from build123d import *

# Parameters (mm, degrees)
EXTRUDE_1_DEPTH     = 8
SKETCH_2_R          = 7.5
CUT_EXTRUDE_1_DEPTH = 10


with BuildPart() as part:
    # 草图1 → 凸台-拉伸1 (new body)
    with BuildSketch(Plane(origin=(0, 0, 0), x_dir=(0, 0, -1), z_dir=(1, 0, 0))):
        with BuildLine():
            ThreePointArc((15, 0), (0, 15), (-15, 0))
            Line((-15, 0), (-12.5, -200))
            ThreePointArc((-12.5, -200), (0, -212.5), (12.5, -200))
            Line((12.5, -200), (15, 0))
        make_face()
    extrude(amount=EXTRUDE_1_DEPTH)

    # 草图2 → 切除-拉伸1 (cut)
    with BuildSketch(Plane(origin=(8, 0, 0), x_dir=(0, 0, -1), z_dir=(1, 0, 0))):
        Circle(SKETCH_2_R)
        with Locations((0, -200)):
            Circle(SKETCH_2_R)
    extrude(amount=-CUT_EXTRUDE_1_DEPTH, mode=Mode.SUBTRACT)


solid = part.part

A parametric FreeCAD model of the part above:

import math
import FreeCAD as App
import Part
import Sketcher

V = App.Vector
Q = App.Units.Quantity

doc = App.newDocument("Part")
params = doc.addObject("Spreadsheet::Sheet", "Params")
for row, (alias, value) in enumerate([
    ("sketch1_radius", "15 mm"),
    ("sketch1_radius2", "12.5 mm"),
    ("pad1_length", "8 mm"),
    ("sketch2_diameter", "15 mm"),
    ("pocket1_length", "10 mm"),
], start=1):
    params.set(f"A{row}", alias)
    params.set(f"B{row}", "=" + value)
    params.setAlias(f"B{row}", alias)

body = doc.addObject("PartDesign::Body", "Body")

sketch1 = body.newObject("Sketcher::SketchObject", "Sketch")
sketch1.AttachmentSupport = (doc.getObject("YZ_Plane"), [""])
sketch1.MapMode = "FlatFace"
sketch1.addGeometry(Part.ArcOfCircle(Part.Circle(V(0, 0, 0), V(0, 0, 1), 15), math.radians(-90), math.radians(90)), False)
sketch1.addGeometry(Part.LineSegment(V(0, 15, 0), V(-200, 12, 0)), False)
sketch1.addGeometry(Part.ArcOfCircle(Part.Circle(V(-200, 0, 0), V(0, 0, 1), 12), math.radians(90), math.radians(270)), False)
sketch1.addGeometry(Part.LineSegment(V(-200, -12, 0), V(0, -15, 0)), False)
sketch1.addConstraint(Sketcher.Constraint("Coincident", 0, 2, 1, 1))
sketch1.addConstraint(Sketcher.Constraint("Coincident", 1, 2, 2, 1))
sketch1.addConstraint(Sketcher.Constraint("Coincident", 2, 2, 3, 1))
sketch1.addConstraint(Sketcher.Constraint("Coincident", 3, 2, 0, 1))
sketch1.addConstraint(Sketcher.Constraint("Coincident", 0, 3, -1, 1))
sketch1.addConstraint(Sketcher.Constraint("Symmetric", 1, 2, 2, 2, -1))
sketch1.addConstraint(Sketcher.Constraint("PointOnObject", 0, 2, -2))
sketch1.addConstraint(Sketcher.Constraint("PointOnObject", 3, 2, -2))
sketch1.addConstraint(Sketcher.Constraint("Vertical", 2, 3, 1, 2))
sketch1.addConstraint(Sketcher.Constraint("Radius", 0, Q("15 mm")))
sketch1.addConstraint(Sketcher.Constraint("Radius", 2, Q("12.5 mm")))
sketch1.addConstraint(Sketcher.Constraint("DistanceX", 2, 3, -1, 1, Q("200 mm")))
sketch1.setExpression("Constraints[9]", "Params.sketch1_radius")
sketch1.setExpression("Constraints[10]", "Params.sketch1_radius2")
pad1 = body.newObject("PartDesign::Pad", "Pad")
pad1.Profile = sketch1
pad1.setExpression("Length", "Params.pad1_length")

sketch2 = body.newObject("Sketcher::SketchObject", "Sketch001")
sketch2.AttachmentSupport = (doc.getObject("YZ_Plane"), [""])
sketch2.MapMode = "FlatFace"
sketch2.AttachmentOffset = App.Placement(V(0, 0, 8), App.Rotation())
sketch2.addGeometry(Part.Circle(V(0, 0, 0), V(0, 0, 1), 8), False)
sketch2.addGeometry(Part.Circle(V(-200, 0, 0), V(0, 0, 1), 8), False)
sketch2.addConstraint(Sketcher.Constraint("Coincident", 0, 3, -1, 1))
sketch2.addConstraint(Sketcher.Constraint("Equal", 0, 1))
sketch2.addConstraint(Sketcher.Constraint("PointOnObject", 1, 3, -1))
sketch2.addConstraint(Sketcher.Constraint("Diameter", 0, Q("15 mm")))
sketch2.addConstraint(Sketcher.Constraint("DistanceX", 1, 3, -1, 1, Q("200 mm")))
sketch2.setExpression("Constraints[3]", "Params.sketch2_diameter")
pocket1 = body.newObject("PartDesign::Pocket", "Pocket")
pocket1.Profile = sketch2
pocket1.setExpression("Length", "Params.pocket1_length")

doc.recompute()
